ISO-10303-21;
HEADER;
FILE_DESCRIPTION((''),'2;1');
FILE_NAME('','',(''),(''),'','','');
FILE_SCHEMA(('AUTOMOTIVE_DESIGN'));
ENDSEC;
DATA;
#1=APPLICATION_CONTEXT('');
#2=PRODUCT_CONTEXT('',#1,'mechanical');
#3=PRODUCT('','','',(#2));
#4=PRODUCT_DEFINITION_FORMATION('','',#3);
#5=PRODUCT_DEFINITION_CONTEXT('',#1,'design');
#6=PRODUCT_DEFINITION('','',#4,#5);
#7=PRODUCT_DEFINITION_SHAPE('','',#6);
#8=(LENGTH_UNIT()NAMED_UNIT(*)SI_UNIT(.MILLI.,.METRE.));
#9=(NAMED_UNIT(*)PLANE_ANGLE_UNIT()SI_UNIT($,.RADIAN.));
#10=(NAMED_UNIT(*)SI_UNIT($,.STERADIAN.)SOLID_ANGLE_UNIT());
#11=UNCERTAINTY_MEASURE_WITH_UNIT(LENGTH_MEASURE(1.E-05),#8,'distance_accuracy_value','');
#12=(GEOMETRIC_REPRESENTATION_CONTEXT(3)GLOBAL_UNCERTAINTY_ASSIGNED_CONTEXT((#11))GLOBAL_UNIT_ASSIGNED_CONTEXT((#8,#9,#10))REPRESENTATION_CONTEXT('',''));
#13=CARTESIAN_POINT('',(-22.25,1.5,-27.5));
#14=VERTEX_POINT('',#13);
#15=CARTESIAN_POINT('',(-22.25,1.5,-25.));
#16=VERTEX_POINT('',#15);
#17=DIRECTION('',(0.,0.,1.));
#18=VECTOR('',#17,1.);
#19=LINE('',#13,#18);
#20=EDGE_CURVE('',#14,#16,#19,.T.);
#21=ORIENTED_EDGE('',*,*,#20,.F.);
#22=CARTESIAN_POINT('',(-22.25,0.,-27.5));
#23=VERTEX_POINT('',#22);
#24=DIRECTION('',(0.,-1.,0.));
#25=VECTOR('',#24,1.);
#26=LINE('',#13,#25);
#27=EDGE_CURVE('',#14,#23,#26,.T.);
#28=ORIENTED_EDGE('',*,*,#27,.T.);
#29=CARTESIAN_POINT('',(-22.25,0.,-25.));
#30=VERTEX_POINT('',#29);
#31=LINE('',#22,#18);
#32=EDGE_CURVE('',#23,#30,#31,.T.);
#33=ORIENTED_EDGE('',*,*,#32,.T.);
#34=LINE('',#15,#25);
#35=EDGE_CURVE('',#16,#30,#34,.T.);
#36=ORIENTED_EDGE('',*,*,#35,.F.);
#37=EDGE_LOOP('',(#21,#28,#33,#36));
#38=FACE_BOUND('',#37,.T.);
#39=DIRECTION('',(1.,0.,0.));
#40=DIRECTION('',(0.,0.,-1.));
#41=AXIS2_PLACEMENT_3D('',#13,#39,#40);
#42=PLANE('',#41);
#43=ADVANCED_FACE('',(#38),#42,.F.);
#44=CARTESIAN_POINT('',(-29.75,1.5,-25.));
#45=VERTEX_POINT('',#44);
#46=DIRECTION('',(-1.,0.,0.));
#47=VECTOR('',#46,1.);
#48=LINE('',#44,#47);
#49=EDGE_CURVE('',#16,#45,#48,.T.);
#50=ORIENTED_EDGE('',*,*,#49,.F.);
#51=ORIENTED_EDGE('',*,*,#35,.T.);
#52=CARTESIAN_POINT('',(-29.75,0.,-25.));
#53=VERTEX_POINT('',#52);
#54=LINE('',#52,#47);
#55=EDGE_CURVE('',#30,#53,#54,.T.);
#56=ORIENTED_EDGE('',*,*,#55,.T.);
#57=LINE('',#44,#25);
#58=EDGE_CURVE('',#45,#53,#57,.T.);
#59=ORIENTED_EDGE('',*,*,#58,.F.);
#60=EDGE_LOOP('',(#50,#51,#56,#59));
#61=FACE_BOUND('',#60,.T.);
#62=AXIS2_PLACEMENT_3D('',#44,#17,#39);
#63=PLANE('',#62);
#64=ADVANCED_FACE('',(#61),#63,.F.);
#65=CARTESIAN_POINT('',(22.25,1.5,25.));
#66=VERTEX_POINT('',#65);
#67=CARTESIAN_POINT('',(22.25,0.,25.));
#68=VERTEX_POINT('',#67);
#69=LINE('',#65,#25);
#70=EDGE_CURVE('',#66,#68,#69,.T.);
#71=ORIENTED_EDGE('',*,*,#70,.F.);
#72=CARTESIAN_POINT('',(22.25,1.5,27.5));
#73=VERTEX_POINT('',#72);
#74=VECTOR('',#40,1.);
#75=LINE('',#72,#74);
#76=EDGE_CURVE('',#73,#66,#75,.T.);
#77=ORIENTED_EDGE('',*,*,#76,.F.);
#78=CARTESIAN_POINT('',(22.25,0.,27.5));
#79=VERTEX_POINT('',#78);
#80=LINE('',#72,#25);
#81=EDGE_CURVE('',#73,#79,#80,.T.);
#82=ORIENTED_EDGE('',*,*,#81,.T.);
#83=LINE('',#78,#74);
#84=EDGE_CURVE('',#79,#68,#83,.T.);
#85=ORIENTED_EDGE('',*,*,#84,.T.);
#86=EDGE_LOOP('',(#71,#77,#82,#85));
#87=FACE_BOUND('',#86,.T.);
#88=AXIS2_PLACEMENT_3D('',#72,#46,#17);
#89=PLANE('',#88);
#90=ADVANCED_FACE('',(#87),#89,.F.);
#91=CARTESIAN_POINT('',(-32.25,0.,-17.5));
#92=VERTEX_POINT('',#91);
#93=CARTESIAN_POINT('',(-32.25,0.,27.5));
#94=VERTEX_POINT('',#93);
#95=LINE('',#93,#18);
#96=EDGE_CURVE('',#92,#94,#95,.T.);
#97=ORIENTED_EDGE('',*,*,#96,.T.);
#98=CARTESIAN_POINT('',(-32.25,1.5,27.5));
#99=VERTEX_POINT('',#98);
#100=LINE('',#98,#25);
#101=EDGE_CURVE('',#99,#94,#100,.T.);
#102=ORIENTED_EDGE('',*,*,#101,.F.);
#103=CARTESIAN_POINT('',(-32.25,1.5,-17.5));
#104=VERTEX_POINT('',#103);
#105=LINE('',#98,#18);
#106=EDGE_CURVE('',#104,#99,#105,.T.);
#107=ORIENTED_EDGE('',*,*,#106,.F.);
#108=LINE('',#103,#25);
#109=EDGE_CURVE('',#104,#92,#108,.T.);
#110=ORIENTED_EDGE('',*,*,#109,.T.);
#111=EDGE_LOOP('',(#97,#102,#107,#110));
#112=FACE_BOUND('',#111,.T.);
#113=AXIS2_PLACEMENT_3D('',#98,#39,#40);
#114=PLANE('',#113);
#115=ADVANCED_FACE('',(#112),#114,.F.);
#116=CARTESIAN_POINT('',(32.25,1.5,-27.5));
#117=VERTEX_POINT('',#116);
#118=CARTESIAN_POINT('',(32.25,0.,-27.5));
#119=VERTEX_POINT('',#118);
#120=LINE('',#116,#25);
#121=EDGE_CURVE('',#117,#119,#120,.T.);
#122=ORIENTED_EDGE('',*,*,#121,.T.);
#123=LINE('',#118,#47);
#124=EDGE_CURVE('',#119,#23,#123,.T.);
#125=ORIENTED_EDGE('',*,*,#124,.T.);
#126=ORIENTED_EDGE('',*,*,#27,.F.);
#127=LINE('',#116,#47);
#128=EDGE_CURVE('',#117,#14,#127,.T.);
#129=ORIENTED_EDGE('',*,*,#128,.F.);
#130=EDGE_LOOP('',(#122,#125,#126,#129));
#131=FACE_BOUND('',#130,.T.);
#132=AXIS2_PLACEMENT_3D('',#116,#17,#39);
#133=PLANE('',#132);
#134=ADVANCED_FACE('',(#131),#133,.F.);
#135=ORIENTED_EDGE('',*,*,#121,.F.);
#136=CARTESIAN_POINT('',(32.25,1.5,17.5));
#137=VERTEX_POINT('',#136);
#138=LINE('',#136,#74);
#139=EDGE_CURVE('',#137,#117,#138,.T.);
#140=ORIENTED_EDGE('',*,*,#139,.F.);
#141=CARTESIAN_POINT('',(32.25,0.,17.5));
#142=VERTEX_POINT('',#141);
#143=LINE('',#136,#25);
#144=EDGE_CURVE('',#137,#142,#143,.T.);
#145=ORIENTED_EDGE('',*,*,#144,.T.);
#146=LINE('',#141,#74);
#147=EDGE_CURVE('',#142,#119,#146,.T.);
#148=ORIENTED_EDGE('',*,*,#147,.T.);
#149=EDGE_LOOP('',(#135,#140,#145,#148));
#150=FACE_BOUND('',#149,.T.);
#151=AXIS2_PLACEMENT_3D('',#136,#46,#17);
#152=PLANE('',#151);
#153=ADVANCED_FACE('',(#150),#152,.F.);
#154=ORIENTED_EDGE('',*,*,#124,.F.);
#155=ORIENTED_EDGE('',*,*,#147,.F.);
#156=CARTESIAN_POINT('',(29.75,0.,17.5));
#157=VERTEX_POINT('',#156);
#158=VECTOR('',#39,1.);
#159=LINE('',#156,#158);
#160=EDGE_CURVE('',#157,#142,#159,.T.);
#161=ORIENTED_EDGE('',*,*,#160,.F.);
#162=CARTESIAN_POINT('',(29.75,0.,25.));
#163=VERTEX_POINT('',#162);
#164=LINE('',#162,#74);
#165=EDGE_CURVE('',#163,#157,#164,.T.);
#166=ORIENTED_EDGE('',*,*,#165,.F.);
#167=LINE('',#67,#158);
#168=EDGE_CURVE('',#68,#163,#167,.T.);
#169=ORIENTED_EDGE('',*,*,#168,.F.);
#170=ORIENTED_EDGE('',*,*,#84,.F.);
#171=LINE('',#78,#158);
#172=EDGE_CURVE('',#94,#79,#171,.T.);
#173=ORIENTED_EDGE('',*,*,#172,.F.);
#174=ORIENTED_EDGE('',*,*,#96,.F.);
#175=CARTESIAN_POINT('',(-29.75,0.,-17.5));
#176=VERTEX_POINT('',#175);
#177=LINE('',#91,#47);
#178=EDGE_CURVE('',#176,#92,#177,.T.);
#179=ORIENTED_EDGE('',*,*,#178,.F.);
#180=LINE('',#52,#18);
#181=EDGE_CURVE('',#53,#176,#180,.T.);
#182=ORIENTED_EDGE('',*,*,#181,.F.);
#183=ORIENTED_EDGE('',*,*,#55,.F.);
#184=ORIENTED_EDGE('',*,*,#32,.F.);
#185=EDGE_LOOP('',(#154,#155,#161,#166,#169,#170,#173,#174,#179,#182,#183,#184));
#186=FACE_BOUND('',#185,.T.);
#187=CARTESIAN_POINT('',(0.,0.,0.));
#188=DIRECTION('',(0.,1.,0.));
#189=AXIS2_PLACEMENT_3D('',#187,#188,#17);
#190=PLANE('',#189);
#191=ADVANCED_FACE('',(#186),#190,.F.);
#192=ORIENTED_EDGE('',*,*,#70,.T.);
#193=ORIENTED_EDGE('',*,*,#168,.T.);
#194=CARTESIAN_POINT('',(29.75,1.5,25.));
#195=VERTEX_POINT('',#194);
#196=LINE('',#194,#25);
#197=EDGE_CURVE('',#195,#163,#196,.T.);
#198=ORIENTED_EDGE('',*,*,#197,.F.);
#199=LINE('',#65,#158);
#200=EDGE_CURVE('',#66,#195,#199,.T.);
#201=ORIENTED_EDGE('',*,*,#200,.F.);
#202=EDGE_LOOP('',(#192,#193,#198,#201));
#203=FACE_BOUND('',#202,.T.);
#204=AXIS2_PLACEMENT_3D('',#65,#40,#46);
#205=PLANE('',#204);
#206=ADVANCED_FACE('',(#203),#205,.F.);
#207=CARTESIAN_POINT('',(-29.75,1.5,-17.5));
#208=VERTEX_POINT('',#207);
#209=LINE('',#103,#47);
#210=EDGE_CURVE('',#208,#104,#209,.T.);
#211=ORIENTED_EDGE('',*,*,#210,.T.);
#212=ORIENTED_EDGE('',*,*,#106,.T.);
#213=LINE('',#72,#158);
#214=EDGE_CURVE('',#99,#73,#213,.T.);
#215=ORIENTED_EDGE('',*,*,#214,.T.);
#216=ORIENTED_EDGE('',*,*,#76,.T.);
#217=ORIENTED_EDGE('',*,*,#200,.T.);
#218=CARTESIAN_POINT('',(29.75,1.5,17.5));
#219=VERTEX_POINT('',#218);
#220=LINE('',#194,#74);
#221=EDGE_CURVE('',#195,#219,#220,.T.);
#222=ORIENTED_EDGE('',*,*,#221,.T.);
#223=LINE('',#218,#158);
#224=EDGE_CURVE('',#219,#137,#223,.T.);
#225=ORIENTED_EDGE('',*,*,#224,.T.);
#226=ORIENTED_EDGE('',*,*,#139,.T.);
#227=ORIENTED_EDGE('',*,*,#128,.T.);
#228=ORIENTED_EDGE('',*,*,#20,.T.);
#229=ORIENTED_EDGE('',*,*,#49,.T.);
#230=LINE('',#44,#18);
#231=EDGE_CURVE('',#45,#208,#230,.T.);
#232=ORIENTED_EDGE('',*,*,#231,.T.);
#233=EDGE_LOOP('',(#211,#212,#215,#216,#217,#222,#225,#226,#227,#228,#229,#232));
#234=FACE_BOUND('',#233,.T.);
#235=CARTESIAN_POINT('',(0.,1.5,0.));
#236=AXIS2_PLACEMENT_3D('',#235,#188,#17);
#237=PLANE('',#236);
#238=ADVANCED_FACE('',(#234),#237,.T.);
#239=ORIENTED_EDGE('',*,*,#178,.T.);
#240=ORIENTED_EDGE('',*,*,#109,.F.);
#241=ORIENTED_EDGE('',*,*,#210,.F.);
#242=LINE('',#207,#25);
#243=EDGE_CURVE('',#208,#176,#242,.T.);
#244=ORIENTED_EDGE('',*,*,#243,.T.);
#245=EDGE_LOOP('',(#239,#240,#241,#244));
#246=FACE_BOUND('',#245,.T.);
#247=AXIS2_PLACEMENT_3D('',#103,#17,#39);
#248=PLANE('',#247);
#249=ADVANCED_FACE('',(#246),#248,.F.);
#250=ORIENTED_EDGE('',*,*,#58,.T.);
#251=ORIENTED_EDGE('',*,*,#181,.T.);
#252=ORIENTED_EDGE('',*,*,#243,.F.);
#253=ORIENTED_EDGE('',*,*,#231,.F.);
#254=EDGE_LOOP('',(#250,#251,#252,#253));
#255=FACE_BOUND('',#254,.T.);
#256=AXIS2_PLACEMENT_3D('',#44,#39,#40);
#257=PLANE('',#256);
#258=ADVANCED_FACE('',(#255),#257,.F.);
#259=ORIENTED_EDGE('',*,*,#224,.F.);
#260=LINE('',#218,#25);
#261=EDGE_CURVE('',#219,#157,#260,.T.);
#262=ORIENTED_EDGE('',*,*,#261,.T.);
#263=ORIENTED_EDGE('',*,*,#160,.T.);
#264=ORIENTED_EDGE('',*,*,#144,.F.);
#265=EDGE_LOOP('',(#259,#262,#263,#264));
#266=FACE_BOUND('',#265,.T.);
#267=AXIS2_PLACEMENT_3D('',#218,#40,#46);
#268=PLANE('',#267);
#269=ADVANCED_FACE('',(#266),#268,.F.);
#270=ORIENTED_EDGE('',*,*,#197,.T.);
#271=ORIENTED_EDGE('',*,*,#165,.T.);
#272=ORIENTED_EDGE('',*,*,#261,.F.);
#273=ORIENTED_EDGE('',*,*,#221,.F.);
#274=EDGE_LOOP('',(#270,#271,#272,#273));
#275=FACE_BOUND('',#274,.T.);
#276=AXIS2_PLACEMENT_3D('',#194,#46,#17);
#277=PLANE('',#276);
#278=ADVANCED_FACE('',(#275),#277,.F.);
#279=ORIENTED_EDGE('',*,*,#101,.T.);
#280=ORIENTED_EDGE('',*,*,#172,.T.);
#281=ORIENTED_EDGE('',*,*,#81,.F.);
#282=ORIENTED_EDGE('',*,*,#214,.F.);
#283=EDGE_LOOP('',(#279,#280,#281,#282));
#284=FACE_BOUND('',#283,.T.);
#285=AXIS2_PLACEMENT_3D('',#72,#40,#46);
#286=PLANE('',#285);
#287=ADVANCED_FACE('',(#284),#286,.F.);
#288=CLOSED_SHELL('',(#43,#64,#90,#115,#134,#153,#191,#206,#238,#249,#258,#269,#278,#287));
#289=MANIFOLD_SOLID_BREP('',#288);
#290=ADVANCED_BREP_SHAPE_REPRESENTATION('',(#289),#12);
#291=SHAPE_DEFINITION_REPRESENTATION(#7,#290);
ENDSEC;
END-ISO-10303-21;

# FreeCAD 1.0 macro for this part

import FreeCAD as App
import Part
import Sketcher

V = App.Vector


def add_polygon(sketch, points):
    """Adds a closed chain of lines whose ends are joined by coincident constraints."""
    first, n = sketch.GeometryCount, len(points)
    for a, b in zip(points, points[1:] + points[:1]):
        sketch.addGeometry(Part.LineSegment(App.Vector(*a, 0), App.Vector(*b, 0)), False)
    for i in range(n):
        sketch.addConstraint(Sketcher.Constraint("Coincident", first + i, 2, first + (i + 1) % n, 1))

doc = App.newDocument("Part")
body = doc.addObject("PartDesign::Body", "Body")

# Sketch on XZ plane
sketch1 = body.newObject("Sketcher::SketchObject", "Sketch")
sketch1.AttachmentSupport = (doc.getObject("XZ_Plane"), [""])
sketch1.MapMode = "FlatFace"
add_polygon(sketch1, [(22.25, 27.5), (22.25, 25), (29.75, 25), (29.75, 17.5), (32.25, 17.5), (32.25, -27.5), (-22.25, -27.5), (-22.25, -25), (-29.75, -25), (-29.75, -17.5), (-32.25, -17.5), (-32.25, 27.5)])  # lines 0-11
sketch1.addConstraint(Sketcher.Constraint("Vertical", 0))
sketch1.addConstraint(Sketcher.Constraint("Horizontal", 1))
sketch1.addConstraint(Sketcher.Constraint("Vertical", 2))
sketch1.addConstraint(Sketcher.Constraint("Horizontal", 3))
sketch1.addConstraint(Sketcher.Constraint("Vertical", 4))
sketch1.addConstraint(Sketcher.Constraint("Horizontal", 5))
sketch1.addConstraint(Sketcher.Constraint("Vertical", 6))
sketch1.addConstraint(Sketcher.Constraint("Horizontal", 7))
sketch1.addConstraint(Sketcher.Constraint("Vertical", 8))
sketch1.addConstraint(Sketcher.Constraint("Horizontal", 9))
sketch1.addConstraint(Sketcher.Constraint("Vertical", 10))
sketch1.addConstraint(Sketcher.Constraint("Horizontal", 11))
sketch1.addConstraint(Sketcher.Constraint("Symmetric", 0, 2, 6, 2, -1, 1))
sketch1.addConstraint(Sketcher.Constraint("Symmetric", 2, 2, 8, 2, -1, 1))
sketch1.addConstraint(Sketcher.Constraint("Symmetric", 4, 2, 10, 2, -1, 1))
sketch1.addConstraint(Sketcher.Constraint("Equal", 9, 0))
sketch1.addConstraint(Sketcher.Constraint("Equal", 7, 2))
sketch1.addConstraint(Sketcher.Constraint("DistanceY", 4, 2, 4, 1, 45.0))
sketch1.addConstraint(Sketcher.Constraint("DistanceX", 1, 1, 1, 2, 7.5))
sketch1.addConstraint(Sketcher.Constraint("DistanceX", 3, 1, 3, 2, 2.5))
sketch1.addConstraint(Sketcher.Constraint("DistanceX", 5, 2, 5, 1, 54.5))
pad1 = body.newObject("PartDesign::Pad", "Pad")
pad1.Profile = sketch1
pad1.Length = 1.5
pad1.Reversed = True

doc.recompute()
